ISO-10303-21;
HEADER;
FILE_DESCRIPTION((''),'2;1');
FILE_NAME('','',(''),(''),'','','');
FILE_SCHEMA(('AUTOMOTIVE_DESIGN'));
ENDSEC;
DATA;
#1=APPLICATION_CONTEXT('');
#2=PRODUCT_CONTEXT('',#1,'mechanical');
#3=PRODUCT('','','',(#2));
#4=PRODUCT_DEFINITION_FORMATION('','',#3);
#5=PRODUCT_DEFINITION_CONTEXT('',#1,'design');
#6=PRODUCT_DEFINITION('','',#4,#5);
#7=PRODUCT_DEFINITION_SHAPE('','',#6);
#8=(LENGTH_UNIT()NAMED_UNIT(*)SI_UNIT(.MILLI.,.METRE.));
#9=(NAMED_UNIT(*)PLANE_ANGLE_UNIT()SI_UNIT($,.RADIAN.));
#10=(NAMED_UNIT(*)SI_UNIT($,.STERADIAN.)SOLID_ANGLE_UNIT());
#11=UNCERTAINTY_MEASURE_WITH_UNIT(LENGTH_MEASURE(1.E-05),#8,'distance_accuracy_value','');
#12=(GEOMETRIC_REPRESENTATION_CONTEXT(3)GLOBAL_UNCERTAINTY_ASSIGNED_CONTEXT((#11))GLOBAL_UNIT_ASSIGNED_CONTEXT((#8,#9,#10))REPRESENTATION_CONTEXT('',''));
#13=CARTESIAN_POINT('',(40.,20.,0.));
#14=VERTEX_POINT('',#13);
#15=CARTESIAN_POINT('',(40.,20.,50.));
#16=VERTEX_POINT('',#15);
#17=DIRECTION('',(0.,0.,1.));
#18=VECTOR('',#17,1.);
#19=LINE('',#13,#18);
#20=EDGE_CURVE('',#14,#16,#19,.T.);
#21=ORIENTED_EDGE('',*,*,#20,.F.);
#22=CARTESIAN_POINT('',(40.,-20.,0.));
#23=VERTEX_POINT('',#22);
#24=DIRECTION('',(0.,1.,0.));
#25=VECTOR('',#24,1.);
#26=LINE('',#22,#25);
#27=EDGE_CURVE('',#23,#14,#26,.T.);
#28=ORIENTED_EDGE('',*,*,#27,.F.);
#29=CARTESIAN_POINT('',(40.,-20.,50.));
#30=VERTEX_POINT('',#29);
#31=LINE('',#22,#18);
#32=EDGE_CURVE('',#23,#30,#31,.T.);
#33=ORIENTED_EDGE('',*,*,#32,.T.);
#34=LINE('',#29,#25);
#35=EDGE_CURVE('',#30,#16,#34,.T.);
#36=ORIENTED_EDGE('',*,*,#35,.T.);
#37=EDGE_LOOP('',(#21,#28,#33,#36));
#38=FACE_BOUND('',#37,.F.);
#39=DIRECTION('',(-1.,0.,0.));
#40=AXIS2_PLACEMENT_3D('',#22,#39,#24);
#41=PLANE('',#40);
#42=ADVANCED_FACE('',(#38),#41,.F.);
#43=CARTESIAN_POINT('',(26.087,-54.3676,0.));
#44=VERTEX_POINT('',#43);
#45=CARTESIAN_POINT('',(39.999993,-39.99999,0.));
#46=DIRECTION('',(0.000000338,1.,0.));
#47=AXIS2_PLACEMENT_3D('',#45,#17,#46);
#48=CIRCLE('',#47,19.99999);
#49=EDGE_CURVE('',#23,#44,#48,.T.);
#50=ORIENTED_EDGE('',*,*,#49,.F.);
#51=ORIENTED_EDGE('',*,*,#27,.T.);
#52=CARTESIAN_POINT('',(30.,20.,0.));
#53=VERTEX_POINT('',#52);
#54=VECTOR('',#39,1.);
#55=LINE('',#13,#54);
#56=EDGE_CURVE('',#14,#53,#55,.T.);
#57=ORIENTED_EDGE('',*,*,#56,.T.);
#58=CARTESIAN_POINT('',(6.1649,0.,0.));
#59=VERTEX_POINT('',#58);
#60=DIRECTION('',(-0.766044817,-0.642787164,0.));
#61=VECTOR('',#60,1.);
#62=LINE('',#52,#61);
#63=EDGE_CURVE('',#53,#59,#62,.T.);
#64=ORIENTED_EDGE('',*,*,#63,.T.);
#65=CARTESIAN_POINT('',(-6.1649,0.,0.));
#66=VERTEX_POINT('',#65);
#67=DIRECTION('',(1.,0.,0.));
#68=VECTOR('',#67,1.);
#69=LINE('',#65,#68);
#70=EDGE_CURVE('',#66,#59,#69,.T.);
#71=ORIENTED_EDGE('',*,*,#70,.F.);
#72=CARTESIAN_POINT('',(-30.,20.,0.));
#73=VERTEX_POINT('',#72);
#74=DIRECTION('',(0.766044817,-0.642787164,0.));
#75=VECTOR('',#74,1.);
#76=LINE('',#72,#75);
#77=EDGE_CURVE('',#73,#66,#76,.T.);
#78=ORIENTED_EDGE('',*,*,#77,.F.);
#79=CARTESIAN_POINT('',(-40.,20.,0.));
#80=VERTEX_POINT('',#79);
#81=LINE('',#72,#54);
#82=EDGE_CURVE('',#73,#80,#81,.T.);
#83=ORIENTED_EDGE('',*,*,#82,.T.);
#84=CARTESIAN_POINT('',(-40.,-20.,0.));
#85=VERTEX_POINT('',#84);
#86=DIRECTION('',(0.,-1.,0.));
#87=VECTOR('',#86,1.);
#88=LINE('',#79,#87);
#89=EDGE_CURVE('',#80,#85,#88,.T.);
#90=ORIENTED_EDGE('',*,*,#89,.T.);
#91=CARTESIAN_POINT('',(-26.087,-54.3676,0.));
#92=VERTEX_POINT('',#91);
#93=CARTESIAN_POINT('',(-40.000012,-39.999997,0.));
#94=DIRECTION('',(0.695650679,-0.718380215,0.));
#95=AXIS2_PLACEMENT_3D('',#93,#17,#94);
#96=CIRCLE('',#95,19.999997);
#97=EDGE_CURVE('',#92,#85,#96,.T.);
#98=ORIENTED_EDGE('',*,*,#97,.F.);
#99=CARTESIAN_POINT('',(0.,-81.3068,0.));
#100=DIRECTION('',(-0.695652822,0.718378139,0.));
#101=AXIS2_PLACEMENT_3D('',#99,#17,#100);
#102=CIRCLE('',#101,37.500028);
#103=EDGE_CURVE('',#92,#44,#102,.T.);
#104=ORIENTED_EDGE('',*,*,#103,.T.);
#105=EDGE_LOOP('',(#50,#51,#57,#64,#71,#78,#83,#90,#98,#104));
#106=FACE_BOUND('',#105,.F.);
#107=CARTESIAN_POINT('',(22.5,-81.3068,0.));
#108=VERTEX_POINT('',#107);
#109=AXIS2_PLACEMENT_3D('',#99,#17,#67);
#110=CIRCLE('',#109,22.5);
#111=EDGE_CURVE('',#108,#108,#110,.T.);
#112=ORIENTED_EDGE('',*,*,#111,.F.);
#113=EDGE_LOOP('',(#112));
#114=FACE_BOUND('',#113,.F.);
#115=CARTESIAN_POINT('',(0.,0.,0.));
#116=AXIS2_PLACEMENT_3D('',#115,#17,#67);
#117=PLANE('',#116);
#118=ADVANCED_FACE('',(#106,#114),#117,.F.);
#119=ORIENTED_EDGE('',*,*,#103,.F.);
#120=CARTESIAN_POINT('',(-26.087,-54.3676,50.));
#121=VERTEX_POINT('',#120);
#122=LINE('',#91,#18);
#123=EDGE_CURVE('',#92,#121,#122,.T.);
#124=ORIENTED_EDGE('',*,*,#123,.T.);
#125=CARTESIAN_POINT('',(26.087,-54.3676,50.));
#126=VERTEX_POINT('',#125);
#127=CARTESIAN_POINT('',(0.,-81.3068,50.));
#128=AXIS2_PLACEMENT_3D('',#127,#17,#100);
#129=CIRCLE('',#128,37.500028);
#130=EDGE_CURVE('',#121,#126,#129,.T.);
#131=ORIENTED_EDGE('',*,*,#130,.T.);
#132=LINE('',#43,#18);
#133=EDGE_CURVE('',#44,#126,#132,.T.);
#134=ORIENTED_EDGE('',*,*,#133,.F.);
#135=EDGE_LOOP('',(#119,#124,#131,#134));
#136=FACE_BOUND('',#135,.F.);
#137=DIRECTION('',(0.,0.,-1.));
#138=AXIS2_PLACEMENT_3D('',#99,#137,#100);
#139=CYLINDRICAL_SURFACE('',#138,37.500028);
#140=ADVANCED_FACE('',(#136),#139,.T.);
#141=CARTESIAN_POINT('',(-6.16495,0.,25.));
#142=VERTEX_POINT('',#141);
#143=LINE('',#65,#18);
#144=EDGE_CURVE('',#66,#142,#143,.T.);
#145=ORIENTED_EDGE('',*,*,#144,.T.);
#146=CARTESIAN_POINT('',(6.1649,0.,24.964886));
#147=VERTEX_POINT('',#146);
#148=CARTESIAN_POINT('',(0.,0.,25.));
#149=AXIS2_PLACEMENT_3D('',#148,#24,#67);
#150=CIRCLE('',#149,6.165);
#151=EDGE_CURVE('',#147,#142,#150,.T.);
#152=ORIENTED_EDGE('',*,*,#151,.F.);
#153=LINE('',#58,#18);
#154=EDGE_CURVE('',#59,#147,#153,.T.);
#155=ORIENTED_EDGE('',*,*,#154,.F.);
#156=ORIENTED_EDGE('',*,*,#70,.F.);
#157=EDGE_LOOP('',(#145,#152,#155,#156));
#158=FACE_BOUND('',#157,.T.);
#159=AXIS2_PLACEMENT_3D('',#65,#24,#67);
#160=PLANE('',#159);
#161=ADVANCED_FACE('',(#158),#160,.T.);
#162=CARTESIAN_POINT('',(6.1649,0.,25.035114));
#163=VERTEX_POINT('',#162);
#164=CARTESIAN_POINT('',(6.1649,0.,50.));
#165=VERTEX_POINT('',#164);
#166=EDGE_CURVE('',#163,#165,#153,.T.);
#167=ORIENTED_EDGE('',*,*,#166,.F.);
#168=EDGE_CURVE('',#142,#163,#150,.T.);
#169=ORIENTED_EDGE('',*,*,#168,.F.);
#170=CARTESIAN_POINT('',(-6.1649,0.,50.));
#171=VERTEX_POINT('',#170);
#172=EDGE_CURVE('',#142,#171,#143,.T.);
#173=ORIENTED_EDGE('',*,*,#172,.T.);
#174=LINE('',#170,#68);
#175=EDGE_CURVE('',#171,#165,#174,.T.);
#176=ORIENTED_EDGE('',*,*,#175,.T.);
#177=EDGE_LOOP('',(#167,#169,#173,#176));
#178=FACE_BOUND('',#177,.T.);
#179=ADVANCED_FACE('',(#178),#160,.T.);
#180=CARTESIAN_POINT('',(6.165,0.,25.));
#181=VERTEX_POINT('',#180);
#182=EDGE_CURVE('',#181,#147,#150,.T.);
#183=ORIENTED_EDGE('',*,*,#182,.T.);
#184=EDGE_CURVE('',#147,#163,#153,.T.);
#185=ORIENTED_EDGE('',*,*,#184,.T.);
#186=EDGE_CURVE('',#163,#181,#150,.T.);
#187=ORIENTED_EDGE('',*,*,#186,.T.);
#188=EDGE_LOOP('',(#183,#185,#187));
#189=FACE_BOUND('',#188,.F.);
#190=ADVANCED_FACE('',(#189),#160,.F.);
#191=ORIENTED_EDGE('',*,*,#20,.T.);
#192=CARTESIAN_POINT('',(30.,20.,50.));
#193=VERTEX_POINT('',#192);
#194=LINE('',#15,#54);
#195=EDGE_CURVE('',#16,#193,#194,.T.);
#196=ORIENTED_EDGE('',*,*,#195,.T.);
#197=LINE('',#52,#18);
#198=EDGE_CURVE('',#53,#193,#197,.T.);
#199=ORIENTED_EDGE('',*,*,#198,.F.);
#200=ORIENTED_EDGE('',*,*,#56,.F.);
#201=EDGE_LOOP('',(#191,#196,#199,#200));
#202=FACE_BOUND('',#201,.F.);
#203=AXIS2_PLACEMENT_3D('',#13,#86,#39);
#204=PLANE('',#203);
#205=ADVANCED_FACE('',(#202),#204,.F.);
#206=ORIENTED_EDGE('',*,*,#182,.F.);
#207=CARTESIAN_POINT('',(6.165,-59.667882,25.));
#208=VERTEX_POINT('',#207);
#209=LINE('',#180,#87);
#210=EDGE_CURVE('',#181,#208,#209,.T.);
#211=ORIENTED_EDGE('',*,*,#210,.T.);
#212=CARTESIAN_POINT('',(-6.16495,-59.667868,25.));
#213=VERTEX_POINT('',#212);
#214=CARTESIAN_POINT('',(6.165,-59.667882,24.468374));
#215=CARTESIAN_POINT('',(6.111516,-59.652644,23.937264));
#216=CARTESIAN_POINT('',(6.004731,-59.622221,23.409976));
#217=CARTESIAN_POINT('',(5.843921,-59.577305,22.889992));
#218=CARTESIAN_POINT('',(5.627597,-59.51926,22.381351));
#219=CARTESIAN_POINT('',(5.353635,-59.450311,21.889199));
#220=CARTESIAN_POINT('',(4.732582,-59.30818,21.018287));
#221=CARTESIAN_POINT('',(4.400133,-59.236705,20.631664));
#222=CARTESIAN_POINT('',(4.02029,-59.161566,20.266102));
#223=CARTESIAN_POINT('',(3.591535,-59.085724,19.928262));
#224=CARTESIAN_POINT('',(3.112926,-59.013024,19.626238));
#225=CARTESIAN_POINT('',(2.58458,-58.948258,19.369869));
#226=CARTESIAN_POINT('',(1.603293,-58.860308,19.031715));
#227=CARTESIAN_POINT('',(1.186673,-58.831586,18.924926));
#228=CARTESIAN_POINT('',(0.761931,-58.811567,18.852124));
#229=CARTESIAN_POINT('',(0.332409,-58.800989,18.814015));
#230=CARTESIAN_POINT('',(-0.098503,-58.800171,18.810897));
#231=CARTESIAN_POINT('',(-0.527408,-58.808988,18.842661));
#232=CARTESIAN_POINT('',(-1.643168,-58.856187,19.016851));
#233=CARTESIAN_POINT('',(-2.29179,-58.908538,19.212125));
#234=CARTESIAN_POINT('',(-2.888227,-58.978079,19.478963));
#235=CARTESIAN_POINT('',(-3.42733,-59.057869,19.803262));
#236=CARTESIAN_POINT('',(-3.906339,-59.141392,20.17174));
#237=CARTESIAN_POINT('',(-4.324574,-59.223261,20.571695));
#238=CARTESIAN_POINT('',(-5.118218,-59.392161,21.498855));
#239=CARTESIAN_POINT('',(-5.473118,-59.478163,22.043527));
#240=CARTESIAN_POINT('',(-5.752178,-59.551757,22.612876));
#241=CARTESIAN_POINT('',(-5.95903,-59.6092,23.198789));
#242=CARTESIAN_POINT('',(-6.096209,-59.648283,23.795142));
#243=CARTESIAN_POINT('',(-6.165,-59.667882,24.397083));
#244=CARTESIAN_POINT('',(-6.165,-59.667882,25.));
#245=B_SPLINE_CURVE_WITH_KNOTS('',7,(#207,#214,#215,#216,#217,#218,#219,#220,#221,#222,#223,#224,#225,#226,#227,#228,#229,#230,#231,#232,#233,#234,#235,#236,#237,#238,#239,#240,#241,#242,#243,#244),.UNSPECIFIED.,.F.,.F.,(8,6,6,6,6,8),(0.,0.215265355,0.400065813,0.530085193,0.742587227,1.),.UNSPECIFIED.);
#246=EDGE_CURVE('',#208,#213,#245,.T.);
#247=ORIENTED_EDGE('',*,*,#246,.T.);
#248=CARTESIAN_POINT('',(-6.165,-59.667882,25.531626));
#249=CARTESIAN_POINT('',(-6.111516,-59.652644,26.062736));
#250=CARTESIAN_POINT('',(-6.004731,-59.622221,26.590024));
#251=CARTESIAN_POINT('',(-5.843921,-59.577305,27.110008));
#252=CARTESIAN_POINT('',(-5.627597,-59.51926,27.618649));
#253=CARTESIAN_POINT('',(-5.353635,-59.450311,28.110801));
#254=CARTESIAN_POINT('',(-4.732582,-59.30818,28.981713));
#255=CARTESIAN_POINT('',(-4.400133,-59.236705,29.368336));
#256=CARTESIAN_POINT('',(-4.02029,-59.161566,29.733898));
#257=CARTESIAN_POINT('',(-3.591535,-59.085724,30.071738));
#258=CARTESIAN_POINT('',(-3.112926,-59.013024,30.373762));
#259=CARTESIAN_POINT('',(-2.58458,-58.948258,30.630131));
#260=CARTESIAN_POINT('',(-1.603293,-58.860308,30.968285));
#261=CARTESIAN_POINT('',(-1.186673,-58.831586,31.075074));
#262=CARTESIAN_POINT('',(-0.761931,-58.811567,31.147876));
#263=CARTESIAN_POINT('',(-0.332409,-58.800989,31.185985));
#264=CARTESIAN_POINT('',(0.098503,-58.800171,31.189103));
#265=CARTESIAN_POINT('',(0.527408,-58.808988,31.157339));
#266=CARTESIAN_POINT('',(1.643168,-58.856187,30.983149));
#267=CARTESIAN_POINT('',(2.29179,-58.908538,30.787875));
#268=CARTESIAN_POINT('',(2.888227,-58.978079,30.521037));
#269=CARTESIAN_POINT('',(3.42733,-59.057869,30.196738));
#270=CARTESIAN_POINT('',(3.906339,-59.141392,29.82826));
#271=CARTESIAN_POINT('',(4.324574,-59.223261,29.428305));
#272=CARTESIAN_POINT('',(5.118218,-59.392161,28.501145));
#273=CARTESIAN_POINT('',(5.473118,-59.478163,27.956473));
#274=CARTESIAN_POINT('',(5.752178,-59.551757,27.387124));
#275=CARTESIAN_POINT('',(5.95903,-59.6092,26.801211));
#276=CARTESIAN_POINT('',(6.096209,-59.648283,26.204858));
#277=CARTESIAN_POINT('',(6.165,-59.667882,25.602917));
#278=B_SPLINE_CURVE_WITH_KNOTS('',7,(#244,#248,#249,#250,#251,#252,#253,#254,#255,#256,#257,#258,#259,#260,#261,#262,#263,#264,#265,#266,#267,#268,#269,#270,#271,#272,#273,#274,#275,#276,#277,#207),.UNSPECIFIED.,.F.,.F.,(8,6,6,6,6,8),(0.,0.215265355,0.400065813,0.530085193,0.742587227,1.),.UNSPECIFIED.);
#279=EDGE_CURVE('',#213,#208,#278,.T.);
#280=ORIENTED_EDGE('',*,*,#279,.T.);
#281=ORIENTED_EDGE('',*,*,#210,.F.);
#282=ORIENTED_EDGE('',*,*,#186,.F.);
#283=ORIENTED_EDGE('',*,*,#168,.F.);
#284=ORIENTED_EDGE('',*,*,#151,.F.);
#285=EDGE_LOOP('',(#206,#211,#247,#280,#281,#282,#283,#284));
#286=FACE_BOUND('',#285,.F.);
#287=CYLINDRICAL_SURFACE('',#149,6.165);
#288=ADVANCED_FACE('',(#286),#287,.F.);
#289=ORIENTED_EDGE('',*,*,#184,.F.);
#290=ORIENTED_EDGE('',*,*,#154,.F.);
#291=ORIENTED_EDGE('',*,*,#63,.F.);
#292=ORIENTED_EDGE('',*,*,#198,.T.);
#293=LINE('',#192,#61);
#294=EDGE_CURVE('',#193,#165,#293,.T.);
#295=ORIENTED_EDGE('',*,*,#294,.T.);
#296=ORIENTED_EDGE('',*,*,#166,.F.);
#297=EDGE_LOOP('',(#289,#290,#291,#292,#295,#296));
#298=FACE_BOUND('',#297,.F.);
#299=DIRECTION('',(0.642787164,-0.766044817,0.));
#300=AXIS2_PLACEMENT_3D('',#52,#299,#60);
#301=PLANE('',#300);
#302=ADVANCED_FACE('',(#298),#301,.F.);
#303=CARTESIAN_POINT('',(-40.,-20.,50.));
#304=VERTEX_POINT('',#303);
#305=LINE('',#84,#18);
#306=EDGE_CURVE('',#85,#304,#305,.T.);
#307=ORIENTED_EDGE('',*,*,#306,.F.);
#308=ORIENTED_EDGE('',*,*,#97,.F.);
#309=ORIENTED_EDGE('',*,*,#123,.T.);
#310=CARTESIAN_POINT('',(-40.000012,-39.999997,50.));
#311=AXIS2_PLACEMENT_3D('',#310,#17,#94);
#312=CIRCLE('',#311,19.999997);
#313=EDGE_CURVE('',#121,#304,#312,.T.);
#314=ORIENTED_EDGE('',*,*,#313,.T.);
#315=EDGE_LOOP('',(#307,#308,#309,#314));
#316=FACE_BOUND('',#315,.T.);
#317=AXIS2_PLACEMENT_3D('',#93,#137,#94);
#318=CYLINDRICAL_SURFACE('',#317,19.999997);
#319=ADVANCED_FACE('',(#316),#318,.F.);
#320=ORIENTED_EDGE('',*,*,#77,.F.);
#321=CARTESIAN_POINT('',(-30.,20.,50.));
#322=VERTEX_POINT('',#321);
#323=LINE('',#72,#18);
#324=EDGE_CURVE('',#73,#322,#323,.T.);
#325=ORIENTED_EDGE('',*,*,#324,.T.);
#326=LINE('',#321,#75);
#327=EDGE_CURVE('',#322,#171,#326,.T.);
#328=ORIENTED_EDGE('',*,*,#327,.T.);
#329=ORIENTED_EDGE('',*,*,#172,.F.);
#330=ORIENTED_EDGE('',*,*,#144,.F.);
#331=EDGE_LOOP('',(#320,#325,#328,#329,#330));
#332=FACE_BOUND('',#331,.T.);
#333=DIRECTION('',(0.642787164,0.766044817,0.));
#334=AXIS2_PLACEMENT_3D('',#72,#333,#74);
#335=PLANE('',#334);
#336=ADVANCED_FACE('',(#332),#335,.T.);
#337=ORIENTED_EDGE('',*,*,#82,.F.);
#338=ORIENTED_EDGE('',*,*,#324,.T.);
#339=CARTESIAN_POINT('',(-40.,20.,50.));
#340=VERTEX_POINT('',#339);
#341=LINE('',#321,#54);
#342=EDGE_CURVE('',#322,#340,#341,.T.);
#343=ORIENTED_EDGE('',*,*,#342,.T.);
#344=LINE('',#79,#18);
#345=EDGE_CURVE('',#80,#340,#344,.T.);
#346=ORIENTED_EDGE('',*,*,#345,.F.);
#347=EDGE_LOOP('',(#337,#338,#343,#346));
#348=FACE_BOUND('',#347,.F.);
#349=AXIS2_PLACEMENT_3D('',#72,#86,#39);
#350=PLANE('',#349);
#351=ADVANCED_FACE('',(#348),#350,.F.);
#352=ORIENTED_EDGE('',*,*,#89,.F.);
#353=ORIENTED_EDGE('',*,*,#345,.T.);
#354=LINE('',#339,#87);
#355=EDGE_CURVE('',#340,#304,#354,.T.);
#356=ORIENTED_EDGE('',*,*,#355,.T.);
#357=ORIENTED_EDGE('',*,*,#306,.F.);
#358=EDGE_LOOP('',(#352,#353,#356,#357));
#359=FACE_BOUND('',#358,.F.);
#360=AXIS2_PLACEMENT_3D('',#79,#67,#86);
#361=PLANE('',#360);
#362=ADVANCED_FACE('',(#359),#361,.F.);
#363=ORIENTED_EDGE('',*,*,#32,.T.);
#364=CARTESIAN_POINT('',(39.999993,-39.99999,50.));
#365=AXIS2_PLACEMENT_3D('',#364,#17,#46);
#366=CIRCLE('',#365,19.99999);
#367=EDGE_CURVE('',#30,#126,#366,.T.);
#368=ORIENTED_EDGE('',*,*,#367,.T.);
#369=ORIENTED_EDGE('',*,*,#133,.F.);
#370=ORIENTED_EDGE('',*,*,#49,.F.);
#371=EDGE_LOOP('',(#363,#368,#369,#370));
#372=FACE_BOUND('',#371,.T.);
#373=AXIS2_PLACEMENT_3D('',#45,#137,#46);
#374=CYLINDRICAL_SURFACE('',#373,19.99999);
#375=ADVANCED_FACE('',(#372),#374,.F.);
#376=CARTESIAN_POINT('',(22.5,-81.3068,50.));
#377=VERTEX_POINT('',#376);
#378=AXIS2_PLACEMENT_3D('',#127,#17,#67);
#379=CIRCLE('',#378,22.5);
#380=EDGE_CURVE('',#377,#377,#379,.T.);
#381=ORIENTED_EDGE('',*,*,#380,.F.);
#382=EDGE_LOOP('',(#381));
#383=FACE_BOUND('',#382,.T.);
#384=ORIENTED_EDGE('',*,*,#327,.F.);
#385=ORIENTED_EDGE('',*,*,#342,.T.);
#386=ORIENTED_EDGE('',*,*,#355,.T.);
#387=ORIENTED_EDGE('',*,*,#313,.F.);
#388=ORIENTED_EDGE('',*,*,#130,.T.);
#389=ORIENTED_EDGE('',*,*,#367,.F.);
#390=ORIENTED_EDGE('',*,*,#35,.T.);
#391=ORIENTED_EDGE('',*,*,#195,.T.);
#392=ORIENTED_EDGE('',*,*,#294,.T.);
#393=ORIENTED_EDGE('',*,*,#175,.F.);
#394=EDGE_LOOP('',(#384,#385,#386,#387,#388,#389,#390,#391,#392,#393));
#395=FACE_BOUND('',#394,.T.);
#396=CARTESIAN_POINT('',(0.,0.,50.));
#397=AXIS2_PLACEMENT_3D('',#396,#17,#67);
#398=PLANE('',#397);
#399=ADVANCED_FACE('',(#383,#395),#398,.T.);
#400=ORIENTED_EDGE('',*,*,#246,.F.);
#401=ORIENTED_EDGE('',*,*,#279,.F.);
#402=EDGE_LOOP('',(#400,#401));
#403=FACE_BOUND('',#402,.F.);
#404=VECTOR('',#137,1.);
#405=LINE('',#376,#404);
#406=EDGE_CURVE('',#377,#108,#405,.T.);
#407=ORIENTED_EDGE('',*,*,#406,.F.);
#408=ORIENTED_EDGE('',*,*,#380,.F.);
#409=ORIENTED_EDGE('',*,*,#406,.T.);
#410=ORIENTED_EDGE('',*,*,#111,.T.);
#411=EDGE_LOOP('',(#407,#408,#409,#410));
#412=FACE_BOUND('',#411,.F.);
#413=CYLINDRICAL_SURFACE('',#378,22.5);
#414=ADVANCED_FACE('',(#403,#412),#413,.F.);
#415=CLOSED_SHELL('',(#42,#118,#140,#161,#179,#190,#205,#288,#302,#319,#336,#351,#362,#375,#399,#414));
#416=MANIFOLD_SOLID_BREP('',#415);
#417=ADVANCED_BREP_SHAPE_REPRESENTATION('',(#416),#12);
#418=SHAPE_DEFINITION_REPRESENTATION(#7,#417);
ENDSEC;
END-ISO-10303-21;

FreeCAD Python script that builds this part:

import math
import FreeCAD as App
import Part
import Sketcher
from FreeCAD import Vector
Q = App.Units.Quantity

doc = App.newDocument("Part")
body = doc.addObject("PartDesign::Body", "Body")

# Sketch on XY plane
sketch1 = body.newObject("Sketcher::SketchObject", "Sketch")
sketch1.AttachmentSupport = (doc.getObject("XY_Plane"), [""])
sketch1.MapMode = "FlatFace"
sketch1.addGeometry([
    Part.ArcOfCircle(Part.Circle(Vector(40, -40, 0), Vector(0, 0, 1), 20), math.radians(90), math.radians(226)),  # 0
    Part.LineSegment(Vector(40, -20, 0), Vector(40, 20, 0)),  # 1
    Part.LineSegment(Vector(40, 20, 0), Vector(30, 20, 0)),  # 2
    Part.LineSegment(Vector(30, 20, 0), Vector(6, 0, 0)),  # 3
    Part.LineSegment(Vector(6, 0, 0), Vector(-6, 0, 0)),  # 4
    Part.LineSegment(Vector(-6, 0, 0), Vector(-30, 20, 0)),  # 5
    Part.LineSegment(Vector(-30, 20, 0), Vector(-40, 20, 0)),  # 6
    Part.LineSegment(Vector(-40, 20, 0), Vector(-40, -20, 0)),  # 7
    Part.ArcOfCircle(Part.Circle(Vector(-40, -40, 0), Vector(0, 0, 1), 20), math.radians(-46), math.radians(90)),  # 8
    Part.ArcOfCircle(Part.Circle(Vector(0, -81, 0), Vector(0, 0, 1), 38), math.radians(134), math.radians(406)),  # 9
], False)
sketch1.addConstraint([
    Sketcher.Constraint("Coincident", 0, 1, 1, 1),
    Sketcher.Constraint("Coincident", 1, 2, 2, 1),
    Sketcher.Constraint("Coincident", 2, 2, 3, 1),
    Sketcher.Constraint("Coincident", 3, 2, 4, 1),
    Sketcher.Constraint("Coincident", 4, 2, 5, 1),
    Sketcher.Constraint("Coincident", 5, 2, 6, 1),
    Sketcher.Constraint("Coincident", 6, 2, 7, 1),
    Sketcher.Constraint("Coincident", 7, 2, 8, 2),
    Sketcher.Constraint("Tangent", 8, 1, 9, 1),
    Sketcher.Constraint("Tangent", 9, 2, 0, 2),
    Sketcher.Constraint("Vertical", 1),
    Sketcher.Constraint("Horizontal", 2),
    Sketcher.Constraint("Horizontal", 4),
    Sketcher.Constraint("Horizontal", 6),
    Sketcher.Constraint("Vertical", 7),
    Sketcher.Constraint("Equal", 0, 8),
    Sketcher.Constraint("Symmetric", 3, 2, 4, 2, -1, 1),
    Sketcher.Constraint("Symmetric", 0, 1, 6, 2, -1, 1),
    Sketcher.Constraint("Symmetric", 0, 3, 8, 3, -2),
    Sketcher.Constraint("Symmetric", 2, 2, 5, 2, -2),
    Sketcher.Constraint("Vertical", 8, 3, 6, 2),
    Sketcher.Constraint("Radius", 0, Q("20 mm")),
    Sketcher.Constraint("Radius", 9, Q("37.5 mm")),
    Sketcher.Constraint("DistanceX", 2, 2, 2, 1, Q("10 mm")),
    Sketcher.Constraint("DistanceY", 1, 1, 1, 2, Q("40 mm")),
    Sketcher.Constraint("DistanceX", -1, 1, 0, 3, Q("40 mm")),
    Sketcher.Constraint("Angle", 3, Q("-140 deg")),
])
pad1 = body.newObject("PartDesign::Pad", "Pad")
pad1.Profile = sketch1
pad1.Length = 50

# Sketch on XY plane
sketch2 = body.newObject("Sketcher::SketchObject", "Sketch001")
sketch2.AttachmentSupport = (doc.getObject("XY_Plane"), [""])
sketch2.MapMode = "FlatFace"
sketch2.AttachmentOffset = App.Placement(Vector(0, 0, 50), App.Rotation())
sketch2.addGeometry(Part.Circle(Vector(0, -81, 0), Vector(0, 0, 1), 22), False)
sketch2.addConstraint([
    Sketcher.Constraint("PointOnObject", 0, 3, -2),
    Sketcher.Constraint("Diameter", 0, Q("45 mm")),
    Sketcher.Constraint("DistanceY", 0, 3, -1, 1, Q("81.3068 mm")),
])
pocket1 = body.newObject("PartDesign::Pocket", "Pocket")
pocket1.Profile = sketch2
pocket1.Type = "ThroughAll"

# Sketch on XZ plane
sketch3 = body.newObject("Sketcher::SketchObject", "Sketch002")
sketch3.AttachmentSupport = (doc.getObject("XZ_Plane"), [""])
sketch3.MapMode = "FlatFace"
sketch3.addGeometry(Part.Circle(Vector(0, 25, 0), Vector(0, 0, 1), 6), False)
sketch3.addConstraint([
    Sketcher.Constraint("PointOnObject", 0, 3, -2),
    Sketcher.Constraint("Diameter", 0, Q("12.33 mm")),
    Sketcher.Constraint("DistanceY", -1, 1, 0, 3, Q("25 mm")),
])
pocket2 = body.newObject("PartDesign::Pocket", "Pocket001")
pocket2.Profile = sketch3
pocket2.Length = 60
pocket2.Reversed = True

doc.recompute()
